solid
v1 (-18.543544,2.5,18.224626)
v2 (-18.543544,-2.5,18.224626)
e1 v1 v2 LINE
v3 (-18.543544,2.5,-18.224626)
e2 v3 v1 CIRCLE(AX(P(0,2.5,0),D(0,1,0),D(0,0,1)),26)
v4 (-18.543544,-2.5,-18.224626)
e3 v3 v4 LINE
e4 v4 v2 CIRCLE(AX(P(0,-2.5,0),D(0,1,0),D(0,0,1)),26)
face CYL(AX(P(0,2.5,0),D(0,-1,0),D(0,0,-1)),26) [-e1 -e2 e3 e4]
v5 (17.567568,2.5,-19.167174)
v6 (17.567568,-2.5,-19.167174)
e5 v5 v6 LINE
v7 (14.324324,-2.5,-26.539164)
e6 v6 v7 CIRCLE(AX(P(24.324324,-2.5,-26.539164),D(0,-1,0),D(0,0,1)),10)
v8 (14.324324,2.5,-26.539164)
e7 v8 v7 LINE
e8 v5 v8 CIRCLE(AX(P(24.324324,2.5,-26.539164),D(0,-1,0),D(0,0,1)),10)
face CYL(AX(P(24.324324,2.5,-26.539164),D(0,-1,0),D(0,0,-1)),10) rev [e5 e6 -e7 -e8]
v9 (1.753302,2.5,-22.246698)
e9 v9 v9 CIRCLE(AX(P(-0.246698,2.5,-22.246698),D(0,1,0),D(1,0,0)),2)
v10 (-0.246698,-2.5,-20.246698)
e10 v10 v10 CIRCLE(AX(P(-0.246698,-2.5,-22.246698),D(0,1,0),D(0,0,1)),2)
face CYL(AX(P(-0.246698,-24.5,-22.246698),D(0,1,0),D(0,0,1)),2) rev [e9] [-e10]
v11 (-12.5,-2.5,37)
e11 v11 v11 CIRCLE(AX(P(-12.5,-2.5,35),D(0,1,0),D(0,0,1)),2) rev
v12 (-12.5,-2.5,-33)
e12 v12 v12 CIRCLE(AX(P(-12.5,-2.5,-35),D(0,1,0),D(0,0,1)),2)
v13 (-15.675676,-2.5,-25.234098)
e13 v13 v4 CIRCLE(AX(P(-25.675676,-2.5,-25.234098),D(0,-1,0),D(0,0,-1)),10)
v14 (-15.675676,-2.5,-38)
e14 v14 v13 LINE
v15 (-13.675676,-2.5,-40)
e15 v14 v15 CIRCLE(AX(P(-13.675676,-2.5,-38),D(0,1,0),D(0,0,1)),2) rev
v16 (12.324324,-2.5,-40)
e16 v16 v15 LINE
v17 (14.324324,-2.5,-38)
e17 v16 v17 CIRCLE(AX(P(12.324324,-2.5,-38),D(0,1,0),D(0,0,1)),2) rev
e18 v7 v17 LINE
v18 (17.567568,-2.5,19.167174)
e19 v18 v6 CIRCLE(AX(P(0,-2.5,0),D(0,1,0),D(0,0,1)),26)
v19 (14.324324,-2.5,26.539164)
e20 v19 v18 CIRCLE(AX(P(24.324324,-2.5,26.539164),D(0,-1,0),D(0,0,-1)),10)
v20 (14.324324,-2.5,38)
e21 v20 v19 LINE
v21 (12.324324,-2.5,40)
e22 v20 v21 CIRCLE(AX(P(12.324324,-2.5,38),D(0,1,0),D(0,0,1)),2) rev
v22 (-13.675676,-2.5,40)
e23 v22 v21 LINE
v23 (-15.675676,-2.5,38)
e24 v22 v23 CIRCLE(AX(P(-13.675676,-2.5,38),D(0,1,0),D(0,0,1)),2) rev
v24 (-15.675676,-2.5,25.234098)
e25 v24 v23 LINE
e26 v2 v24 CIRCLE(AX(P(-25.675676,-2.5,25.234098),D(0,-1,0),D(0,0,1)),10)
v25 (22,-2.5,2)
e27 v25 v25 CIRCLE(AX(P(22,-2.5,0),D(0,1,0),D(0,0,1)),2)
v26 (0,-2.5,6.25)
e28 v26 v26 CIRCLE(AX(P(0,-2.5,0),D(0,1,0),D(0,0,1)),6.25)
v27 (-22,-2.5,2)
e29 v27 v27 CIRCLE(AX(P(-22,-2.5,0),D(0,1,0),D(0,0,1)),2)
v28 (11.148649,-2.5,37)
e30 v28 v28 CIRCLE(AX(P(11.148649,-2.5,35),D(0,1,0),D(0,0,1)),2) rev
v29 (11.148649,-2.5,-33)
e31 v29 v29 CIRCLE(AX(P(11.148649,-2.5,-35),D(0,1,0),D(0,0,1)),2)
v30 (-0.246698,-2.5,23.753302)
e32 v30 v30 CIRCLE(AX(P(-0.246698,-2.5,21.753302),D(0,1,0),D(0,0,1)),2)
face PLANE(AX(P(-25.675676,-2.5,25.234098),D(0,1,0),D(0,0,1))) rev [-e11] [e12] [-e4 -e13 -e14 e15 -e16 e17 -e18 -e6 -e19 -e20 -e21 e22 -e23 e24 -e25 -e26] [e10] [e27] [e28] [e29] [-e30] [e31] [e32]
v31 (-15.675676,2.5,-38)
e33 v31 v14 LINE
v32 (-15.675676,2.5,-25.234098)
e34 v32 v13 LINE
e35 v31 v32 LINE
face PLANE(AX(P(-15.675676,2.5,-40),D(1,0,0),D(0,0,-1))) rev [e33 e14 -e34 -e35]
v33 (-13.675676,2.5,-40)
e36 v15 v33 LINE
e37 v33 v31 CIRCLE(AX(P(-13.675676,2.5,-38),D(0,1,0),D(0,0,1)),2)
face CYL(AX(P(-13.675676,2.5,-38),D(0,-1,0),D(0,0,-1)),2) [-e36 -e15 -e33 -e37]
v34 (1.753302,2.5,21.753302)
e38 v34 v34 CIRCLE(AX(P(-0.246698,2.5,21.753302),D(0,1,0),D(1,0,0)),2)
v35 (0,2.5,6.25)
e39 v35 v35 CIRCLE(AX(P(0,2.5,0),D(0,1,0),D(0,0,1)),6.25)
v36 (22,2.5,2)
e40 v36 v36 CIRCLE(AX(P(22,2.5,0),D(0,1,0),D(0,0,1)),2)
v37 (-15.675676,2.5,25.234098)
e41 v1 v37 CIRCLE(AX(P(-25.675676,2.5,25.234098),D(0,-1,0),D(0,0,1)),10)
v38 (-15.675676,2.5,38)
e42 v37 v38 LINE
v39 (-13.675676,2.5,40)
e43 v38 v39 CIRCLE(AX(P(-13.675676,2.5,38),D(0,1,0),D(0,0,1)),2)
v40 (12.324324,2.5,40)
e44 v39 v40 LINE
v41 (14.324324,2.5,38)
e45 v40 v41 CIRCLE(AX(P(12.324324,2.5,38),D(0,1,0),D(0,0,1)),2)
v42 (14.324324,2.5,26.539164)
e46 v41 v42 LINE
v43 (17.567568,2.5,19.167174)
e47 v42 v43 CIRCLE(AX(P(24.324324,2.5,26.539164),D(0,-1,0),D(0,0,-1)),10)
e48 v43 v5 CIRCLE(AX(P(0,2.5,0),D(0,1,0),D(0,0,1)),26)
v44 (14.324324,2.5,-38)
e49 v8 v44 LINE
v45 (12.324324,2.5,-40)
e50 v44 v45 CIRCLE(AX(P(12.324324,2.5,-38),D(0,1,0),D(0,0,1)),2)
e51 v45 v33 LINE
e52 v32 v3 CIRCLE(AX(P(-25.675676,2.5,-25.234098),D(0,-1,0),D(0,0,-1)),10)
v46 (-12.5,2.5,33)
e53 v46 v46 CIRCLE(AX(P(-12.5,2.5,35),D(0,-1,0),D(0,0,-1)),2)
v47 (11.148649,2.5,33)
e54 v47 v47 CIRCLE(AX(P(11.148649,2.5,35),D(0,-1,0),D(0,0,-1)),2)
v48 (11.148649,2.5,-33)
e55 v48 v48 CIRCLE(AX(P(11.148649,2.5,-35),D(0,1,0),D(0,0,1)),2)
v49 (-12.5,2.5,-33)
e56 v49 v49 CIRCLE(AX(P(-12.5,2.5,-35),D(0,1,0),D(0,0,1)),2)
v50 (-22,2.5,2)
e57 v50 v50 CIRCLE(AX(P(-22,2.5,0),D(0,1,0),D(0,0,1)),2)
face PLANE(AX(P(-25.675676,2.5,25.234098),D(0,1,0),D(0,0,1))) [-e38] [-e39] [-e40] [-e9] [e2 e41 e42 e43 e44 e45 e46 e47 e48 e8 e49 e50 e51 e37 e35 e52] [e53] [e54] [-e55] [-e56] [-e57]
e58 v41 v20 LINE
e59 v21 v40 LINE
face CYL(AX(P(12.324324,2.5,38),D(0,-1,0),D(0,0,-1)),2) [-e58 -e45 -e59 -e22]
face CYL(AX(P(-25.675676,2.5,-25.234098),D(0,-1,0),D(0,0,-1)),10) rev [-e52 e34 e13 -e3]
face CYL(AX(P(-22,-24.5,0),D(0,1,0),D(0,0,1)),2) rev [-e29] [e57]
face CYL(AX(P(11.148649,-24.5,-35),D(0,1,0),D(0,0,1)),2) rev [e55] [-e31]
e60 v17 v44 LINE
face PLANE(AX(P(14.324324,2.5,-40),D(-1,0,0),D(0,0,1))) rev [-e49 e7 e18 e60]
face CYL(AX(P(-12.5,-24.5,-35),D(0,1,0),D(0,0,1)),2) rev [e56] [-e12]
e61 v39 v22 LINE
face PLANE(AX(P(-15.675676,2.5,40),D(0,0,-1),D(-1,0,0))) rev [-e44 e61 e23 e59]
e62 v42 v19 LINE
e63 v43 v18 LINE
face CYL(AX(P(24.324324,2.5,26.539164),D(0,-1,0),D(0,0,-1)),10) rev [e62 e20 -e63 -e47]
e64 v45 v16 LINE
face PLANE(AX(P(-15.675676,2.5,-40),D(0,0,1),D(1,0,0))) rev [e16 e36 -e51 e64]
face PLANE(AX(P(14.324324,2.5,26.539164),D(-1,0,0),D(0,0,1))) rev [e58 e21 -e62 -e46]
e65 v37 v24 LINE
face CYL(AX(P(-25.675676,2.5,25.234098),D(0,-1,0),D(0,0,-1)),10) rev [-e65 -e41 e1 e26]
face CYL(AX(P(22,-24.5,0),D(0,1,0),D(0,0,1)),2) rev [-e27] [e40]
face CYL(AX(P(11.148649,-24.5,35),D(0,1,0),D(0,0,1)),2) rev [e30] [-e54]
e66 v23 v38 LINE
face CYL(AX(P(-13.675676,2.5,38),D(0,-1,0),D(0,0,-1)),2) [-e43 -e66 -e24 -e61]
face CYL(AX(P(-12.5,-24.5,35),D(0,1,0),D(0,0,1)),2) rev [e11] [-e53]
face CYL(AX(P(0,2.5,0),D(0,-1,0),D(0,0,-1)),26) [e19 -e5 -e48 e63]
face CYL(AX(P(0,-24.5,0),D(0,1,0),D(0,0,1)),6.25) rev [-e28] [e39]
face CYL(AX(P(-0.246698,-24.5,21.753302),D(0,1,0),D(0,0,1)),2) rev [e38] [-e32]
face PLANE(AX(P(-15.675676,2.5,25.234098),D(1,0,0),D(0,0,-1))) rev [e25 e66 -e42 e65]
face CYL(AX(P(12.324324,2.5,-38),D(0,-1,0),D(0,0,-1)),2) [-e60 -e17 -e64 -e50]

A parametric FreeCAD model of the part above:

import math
import FreeCAD as App
import Part
import Sketcher


def edges_at(feature, points):
    """Names of the edges that pass closest to the given points."""
    edges = feature.Shape.Edges
    near = lambda p: min(range(len(edges)), key=lambda i: edges[i].distToShape(Part.Vertex(*p))[0])
    return sorted({f"Edge{near(p) + 1}" for p in points})

doc = App.newDocument("Part")
body = doc.addObject("PartDesign::Body", "Body")

# Sketch on XZ plane
sketch1 = body.newObject("Sketcher::SketchObject", "Sketch")
sketch1.AttachmentSupport = (doc.getObject("XZ_Plane"), [""])
sketch1.MapMode = "FlatFace"
sketch1.addGeometry([
    Part.LineSegment(App.Vector(-16, -40, 0), App.Vector(-16, -25, 0)),  # 0
    Part.ArcOfCircle(Part.Circle(App.Vector(-26, -25, 0), App.Vector(0, 0, 1), 10), math.radians(0), math.radians(45)),  # 1
    Part.ArcOfCircle(Part.Circle(App.Vector(0, 0, 0), App.Vector(0, 0, 1), 26), math.radians(135), math.radians(225)),  # 2
    Part.ArcOfCircle(Part.Circle(App.Vector(-26, 25, 0), App.Vector(0, 0, 1), 10), math.radians(-45), math.radians(0)),  # 3
    Part.LineSegment(App.Vector(-16, 25, 0), App.Vector(-16, 40, 0)),  # 4
    Part.LineSegment(App.Vector(-16, 40, 0), App.Vector(14, 40, 0)),  # 5
    Part.LineSegment(App.Vector(14, 40, 0), App.Vector(14, 27, 0)),  # 6
    Part.ArcOfCircle(Part.Circle(App.Vector(24, 27, 0), App.Vector(0, 0, 1), 10), math.radians(180), math.radians(227)),  # 7
    Part.ArcOfCircle(Part.Circle(App.Vector(0, 0, 0), App.Vector(0, 0, 1), 26), math.radians(-47), math.radians(47)),  # 8
    Part.ArcOfCircle(Part.Circle(App.Vector(24, -27, 0), App.Vector(0, 0, 1), 10), math.radians(133), math.radians(180)),  # 9
    Part.LineSegment(App.Vector(14, -27, 0), App.Vector(14, -40, 0)),  # 10
    Part.LineSegment(App.Vector(14, -40, 0), App.Vector(-16, -40, 0)),  # 11
], False)
sketch1.addConstraint([
    Sketcher.Constraint("Tangent", 0, 2, 1, 1),
    Sketcher.Constraint("Tangent", 1, 2, 2, 2),
    Sketcher.Constraint("Tangent", 2, 1, 3, 1),
    Sketcher.Constraint("Tangent", 3, 2, 4, 1),
    Sketcher.Constraint("Coincident", 4, 2, 5, 1),
    Sketcher.Constraint("Coincident", 5, 2, 6, 1),
    Sketcher.Constraint("Tangent", 6, 2, 7, 1),
    Sketcher.Constraint("Tangent", 7, 2, 8, 2),
    Sketcher.Constraint("Tangent", 8, 1, 9, 1),
    Sketcher.Constraint("Tangent", 9, 2, 10, 1),
    Sketcher.Constraint("Coincident", 10, 2, 11, 1),
    Sketcher.Constraint("Coincident", 11, 2, 0, 1),
    Sketcher.Constraint("Vertical", 0),
    Sketcher.Constraint("Vertical", 4),
    Sketcher.Constraint("Horizontal", 5),
    Sketcher.Constraint("Vertical", 6),
    Sketcher.Constraint("Vertical", 10),
    Sketcher.Constraint("Horizontal", 11),
    Sketcher.Constraint("Coincident", 2, 3, -1, 1),
    Sketcher.Constraint("Coincident", 8, 3, -1, 1),
    Sketcher.Constraint("Equal", 1, 3),
    Sketcher.Constraint("Equal", 3, 7),
    Sketcher.Constraint("Equal", 2, 8),
    Sketcher.Constraint("Equal", 7, 9),
    Sketcher.Constraint("Symmetric", 5, 2, 10, 2, -1),
    Sketcher.Constraint("Vertical", 1, 3, 3, 3),
    Sketcher.Constraint("Radius", 1, 10.0),
    Sketcher.Constraint("Radius", 2, 26.0),
    Sketcher.Constraint("DistanceX", 5, 1, 5, 2, 30.0),
    Sketcher.Constraint("DistanceY", -1, 1, 4, 2, 40.0),
    Sketcher.Constraint("DistanceY", 0, 1, 0, 2, 14.765902),
])
pad1 = body.newObject("PartDesign::Pad", "Pad")
pad1.Profile = sketch1
pad1.Length = 5
pad1.Midplane = True

# Sketch on XZ plane
sketch2 = body.newObject("Sketcher::SketchObject", "Sketch001")
sketch2.AttachmentSupport = (doc.getObject("XZ_Plane"), [""])
sketch2.MapMode = "FlatFace"
sketch2.AttachmentOffset = App.Placement(App.Vector(0, 0, -2.5), App.Rotation())
sketch2.addGeometry([
    Part.Circle(App.Vector(-22, 0, 0), App.Vector(0, 0, 1), 2),
    Part.Circle(App.Vector(22, 0, 0), App.Vector(0, 0, 1), 2),
], False)
sketch2.addConstraint([
    Sketcher.Constraint("Equal", 0, 1),
    Sketcher.Constraint("Symmetric", 0, 3, 1, 3, -1, 1),
    Sketcher.Constraint("PointOnObject", 0, 3, -1),
    Sketcher.Constraint("Diameter", 0, 4.0),
    Sketcher.Constraint("DistanceX", 0, 3, -1, 1, 22.0),
])
pocket1 = body.newObject("PartDesign::Pocket", "Pocket")
pocket1.Profile = sketch2
pocket1.Length = 27
pocket1.Reversed = True
doc.recompute()

datumline = body.newObject("PartDesign::Line", "DatumLine")
datumline.Placement = App.Placement(App.Vector(-0.246698, 0, 0), App.Rotation(App.Vector(0, 0, 1), App.Vector(0, 1, 0)))
polarpattern = body.newObject("PartDesign::PolarPattern", "PolarPattern")
polarpattern.Originals = [pocket1]
polarpattern.Axis = (datumline, [""])
polarpattern.Angle = 90
polarpattern.Occurrences = 2
body.Tip = polarpattern

# Sketch on XZ plane
sketch3 = body.newObject("Sketcher::SketchObject", "Sketch002")
sketch3.AttachmentSupport = (doc.getObject("XZ_Plane"), [""])
sketch3.MapMode = "FlatFace"
sketch3.AttachmentOffset = App.Placement(App.Vector(0, 0, -2.5), App.Rotation())
sketch3.addGeometry(Part.Circle(App.Vector(0, 0, 0), App.Vector(0, 0, 1), 6), False)
sketch3.addConstraint([
    Sketcher.Constraint("Coincident", 0, 3, -1, 1),
    Sketcher.Constraint("Diameter", 0, 12.5),
])
pocket2 = body.newObject("PartDesign::Pocket", "Pocket001")
pocket2.Profile = sketch3
pocket2.Length = 27
pocket2.Reversed = True

# Sketch on XZ plane
sketch4 = body.newObject("Sketcher::SketchObject", "Sketch003")
sketch4.AttachmentSupport = (doc.getObject("XZ_Plane"), [""])
sketch4.MapMode = "FlatFace"
sketch4.AttachmentOffset = App.Placement(App.Vector(0, 0, -2.5), App.Rotation())
sketch4.addGeometry([
    Part.Circle(App.Vector(-12.5, -35, 0), App.Vector(0, 0, 1), 2),
    Part.Circle(App.Vector(11.1, -35, 0), App.Vector(0, 0, 1), 2),
], False)
sketch4.addConstraint([
    Sketcher.Constraint("Equal", 0, 1),
    Sketcher.Constraint("Horizontal", 0, 3, 1, 3),
    Sketcher.Constraint("Diameter", 0, 4.0),
    Sketcher.Constraint("DistanceY", 0, 3, -1, 1, 35.0),
    Sketcher.Constraint("DistanceX", 0, 3, -1, 1, 12.5),
    Sketcher.Constraint("DistanceX", -1, 1, 1, 3, 11.148649),
])
pocket3 = body.newObject("PartDesign::Pocket", "Pocket002")
pocket3.Profile = sketch4
pocket3.Length = 27
pocket3.Reversed = True
doc.recompute()

mirrored = body.newObject("PartDesign::Mirrored", "Mirrored")
mirrored.Originals = [pocket3]
mirrored.MirrorPlane = (doc.getObject("XY_Plane"), [""])
body.Tip = mirrored
doc.recompute()

fillet = body.newObject("PartDesign::Fillet", "Fillet")
fillet.Base = (mirrored, edges_at(mirrored, [
    (-15.676, 0, -40),
    (14.324, 0, -40),
    (14.324, 0, 40),
    (-15.676, 0, 40),
]))
fillet.Radius = 2

doc.recompute()
